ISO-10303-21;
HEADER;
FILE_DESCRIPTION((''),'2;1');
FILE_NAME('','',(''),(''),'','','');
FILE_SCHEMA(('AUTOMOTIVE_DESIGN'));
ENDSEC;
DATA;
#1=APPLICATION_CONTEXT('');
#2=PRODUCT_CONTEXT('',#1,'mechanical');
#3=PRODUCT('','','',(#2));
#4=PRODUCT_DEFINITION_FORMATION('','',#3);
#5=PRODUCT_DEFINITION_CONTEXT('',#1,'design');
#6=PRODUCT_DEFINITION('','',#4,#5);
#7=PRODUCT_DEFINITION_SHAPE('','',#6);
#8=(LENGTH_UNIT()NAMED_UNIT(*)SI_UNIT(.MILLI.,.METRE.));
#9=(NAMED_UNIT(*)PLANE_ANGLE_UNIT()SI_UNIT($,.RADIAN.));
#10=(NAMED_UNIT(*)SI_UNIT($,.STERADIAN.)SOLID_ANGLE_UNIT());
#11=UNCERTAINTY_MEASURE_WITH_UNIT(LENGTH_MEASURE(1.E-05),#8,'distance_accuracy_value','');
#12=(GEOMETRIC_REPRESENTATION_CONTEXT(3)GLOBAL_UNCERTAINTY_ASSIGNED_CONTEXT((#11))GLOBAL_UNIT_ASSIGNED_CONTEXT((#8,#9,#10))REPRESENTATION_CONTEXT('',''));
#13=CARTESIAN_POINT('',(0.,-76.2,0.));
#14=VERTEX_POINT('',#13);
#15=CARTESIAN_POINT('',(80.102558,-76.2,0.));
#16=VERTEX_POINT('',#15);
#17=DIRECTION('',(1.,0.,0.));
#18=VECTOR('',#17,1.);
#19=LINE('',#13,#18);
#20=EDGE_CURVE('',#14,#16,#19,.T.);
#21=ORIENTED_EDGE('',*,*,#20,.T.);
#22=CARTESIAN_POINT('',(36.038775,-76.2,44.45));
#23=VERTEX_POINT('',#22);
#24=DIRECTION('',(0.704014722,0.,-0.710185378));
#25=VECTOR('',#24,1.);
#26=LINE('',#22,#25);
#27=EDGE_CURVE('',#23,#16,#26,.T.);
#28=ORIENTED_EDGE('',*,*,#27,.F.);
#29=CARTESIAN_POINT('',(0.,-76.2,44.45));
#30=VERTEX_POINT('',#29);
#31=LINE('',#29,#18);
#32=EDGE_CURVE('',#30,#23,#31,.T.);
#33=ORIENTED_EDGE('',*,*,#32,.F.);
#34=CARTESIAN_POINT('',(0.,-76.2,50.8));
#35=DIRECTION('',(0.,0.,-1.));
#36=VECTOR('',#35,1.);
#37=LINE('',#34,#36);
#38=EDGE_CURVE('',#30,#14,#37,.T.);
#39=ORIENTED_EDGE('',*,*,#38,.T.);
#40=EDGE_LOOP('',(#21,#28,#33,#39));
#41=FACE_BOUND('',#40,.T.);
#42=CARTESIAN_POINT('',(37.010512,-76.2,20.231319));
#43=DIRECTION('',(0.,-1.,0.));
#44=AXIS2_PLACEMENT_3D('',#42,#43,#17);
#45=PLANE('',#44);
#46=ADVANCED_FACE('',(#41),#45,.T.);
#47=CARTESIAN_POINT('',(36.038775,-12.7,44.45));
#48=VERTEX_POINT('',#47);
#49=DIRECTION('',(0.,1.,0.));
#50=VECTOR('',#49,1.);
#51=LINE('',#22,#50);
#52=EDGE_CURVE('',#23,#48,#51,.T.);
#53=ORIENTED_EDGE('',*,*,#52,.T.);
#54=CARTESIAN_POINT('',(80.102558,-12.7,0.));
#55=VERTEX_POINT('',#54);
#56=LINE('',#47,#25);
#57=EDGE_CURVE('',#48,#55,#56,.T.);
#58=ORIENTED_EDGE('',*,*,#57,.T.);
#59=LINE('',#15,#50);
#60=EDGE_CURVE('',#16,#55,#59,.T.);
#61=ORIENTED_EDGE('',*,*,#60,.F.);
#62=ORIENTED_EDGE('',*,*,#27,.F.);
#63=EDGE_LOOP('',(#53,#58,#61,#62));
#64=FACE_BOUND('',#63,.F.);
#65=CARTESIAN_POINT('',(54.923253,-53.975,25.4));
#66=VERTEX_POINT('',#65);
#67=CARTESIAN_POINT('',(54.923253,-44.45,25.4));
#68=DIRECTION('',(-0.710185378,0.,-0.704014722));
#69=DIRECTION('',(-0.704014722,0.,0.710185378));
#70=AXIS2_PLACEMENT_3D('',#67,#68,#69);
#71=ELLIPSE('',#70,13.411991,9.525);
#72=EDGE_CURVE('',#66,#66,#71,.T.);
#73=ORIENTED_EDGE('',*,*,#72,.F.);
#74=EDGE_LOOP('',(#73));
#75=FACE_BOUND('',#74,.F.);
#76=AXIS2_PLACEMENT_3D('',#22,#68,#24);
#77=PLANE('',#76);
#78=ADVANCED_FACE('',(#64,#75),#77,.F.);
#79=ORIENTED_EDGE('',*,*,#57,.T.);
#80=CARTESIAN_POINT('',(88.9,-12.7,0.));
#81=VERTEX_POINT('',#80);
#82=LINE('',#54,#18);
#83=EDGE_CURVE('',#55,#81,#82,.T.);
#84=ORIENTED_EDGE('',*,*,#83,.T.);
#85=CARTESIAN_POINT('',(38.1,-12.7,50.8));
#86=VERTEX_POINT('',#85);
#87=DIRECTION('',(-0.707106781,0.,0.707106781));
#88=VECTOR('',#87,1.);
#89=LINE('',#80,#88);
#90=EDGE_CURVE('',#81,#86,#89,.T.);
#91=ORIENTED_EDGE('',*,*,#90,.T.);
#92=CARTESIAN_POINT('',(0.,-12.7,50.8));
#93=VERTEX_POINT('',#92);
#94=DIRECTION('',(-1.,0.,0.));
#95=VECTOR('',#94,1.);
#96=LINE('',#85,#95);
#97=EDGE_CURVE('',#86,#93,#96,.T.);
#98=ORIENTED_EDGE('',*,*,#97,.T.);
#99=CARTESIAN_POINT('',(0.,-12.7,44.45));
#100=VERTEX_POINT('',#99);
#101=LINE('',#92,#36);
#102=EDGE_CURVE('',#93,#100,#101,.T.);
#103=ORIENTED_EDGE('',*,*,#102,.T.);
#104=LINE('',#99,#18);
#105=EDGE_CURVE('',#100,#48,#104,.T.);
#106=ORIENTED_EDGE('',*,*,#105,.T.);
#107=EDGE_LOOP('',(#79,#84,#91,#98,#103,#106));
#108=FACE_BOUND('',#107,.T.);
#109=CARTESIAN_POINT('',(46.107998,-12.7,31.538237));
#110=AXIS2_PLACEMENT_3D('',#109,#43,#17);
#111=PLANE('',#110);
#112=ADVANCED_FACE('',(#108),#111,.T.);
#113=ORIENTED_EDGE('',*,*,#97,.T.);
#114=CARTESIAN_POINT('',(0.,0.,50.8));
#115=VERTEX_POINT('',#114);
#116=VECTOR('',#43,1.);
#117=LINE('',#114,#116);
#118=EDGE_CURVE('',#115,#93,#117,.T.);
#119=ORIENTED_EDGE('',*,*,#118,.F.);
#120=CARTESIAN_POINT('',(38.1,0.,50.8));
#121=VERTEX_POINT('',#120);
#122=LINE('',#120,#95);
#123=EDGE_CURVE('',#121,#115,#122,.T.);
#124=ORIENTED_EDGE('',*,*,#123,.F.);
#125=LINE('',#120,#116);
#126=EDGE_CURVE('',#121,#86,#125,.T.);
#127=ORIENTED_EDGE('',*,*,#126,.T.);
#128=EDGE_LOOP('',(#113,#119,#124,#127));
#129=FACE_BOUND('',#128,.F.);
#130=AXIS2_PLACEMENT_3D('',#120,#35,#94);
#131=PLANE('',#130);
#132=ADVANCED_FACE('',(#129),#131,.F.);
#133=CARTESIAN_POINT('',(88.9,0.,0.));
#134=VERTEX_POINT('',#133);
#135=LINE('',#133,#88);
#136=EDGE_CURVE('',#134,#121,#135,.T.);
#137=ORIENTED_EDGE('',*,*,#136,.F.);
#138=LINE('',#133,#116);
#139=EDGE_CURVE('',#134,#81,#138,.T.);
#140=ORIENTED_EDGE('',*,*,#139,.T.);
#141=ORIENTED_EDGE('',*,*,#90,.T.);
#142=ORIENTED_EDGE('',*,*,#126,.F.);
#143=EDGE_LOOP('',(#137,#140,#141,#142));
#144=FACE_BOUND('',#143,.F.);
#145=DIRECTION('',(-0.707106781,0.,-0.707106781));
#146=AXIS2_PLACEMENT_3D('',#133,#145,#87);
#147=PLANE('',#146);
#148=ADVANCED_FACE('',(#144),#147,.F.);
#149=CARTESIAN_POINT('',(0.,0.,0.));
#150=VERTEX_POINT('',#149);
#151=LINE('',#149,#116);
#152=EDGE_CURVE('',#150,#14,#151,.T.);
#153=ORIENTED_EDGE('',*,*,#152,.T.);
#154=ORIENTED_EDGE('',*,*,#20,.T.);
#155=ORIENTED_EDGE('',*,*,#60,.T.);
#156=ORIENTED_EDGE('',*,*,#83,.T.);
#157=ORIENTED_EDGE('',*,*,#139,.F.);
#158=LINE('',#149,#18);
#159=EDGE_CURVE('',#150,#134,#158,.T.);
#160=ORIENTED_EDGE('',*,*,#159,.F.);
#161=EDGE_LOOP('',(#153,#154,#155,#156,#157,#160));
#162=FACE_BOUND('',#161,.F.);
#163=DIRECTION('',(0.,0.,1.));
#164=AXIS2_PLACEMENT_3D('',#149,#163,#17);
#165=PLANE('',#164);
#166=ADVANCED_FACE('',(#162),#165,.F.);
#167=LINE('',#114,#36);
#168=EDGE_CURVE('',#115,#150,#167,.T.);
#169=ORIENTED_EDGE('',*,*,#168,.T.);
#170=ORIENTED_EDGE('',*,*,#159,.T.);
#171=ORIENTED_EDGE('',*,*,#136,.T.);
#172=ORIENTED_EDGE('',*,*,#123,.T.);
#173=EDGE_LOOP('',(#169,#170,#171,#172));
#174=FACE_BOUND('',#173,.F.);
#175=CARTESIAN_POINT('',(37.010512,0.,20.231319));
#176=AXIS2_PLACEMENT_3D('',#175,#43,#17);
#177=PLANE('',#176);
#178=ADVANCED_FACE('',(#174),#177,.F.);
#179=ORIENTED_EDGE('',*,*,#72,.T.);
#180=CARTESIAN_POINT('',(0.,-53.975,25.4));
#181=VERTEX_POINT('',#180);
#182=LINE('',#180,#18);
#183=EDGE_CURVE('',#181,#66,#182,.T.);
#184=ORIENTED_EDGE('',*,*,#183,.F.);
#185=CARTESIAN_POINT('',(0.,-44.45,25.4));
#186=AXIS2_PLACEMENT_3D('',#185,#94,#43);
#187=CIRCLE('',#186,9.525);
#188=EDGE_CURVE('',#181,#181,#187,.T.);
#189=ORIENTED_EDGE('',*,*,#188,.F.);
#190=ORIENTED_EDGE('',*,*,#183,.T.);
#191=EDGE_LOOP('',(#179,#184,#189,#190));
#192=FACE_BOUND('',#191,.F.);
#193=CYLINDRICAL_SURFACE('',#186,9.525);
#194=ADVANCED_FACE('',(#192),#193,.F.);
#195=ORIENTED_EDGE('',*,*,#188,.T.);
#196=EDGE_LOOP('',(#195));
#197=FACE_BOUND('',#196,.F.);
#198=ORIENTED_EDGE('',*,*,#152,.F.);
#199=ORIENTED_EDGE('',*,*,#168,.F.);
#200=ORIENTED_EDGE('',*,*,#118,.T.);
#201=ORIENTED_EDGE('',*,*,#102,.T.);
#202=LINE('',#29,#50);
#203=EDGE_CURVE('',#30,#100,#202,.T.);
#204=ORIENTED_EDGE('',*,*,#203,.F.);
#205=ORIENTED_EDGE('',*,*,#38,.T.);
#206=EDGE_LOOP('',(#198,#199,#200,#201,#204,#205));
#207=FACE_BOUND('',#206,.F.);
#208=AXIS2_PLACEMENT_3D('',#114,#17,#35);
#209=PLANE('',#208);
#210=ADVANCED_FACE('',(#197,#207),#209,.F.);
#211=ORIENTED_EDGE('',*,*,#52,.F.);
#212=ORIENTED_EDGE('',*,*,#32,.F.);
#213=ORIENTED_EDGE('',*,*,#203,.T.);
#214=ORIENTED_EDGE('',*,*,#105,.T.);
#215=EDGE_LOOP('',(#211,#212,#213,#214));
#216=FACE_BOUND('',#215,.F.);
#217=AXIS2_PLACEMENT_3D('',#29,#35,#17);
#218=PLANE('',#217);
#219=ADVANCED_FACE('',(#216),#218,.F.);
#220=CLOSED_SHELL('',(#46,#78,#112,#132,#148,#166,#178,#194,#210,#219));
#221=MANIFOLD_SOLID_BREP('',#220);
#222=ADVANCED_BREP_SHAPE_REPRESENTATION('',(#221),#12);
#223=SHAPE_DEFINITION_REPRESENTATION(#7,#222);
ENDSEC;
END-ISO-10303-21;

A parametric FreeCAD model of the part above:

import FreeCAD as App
import Part
import Sketcher
Q = App.Units.Quantity

doc = App.newDocument("Part")
body = doc.addObject("PartDesign::Body", "Body")

# Sketch on XZ plane
sketch1 = doc.addObject("Sketcher::SketchObject", "Sketch")
body.addObject(sketch1)
sketch1.AttachmentSupport = (doc.XZ_Plane, [""])
sketch1.MapMode = "FlatFace"
sketch1.addGeometry(Part.LineSegment(App.Vector(0, 51, 0), App.Vector(0, 0, 0)), False)
sketch1.addGeometry(Part.LineSegment(App.Vector(0, 0, 0), App.Vector(89, 0, 0)), False)
sketch1.addGeometry(Part.LineSegment(App.Vector(89, 0, 0), App.Vector(38, 51, 0)), False)
sketch1.addGeometry(Part.LineSegment(App.Vector(38, 51, 0), App.Vector(0, 51, 0)), False)
sketch1.addConstraint(Sketcher.Constraint("Coincident", 0, 2, 1, 1))
sketch1.addConstraint(Sketcher.Constraint("Coincident", 1, 2, 2, 1))
sketch1.addConstraint(Sketcher.Constraint("Coincident", 2, 2, 3, 1))
sketch1.addConstraint(Sketcher.Constraint("Coincident", 3, 2, 0, 1))
sketch1.addConstraint(Sketcher.Constraint("Vertical", 0))
sketch1.addConstraint(Sketcher.Constraint("Horizontal", 1))
sketch1.addConstraint(Sketcher.Constraint("Horizontal", 3))
sketch1.addConstraint(Sketcher.Constraint("Coincident", 0, 2, -1, 1))
sketch1.addConstraint(Sketcher.Constraint("DistanceY", 0, 2, 0, 1, Q("2 in")))
sketch1.addConstraint(Sketcher.Constraint("DistanceX", 1, 1, 1, 2, Q("3.5 in")))
sketch1.addConstraint(Sketcher.Constraint("DistanceX", 3, 2, 3, 1, Q("1.5 in")))
pad1 = doc.addObject("PartDesign::Pad", "Pad")
body.addObject(pad1)
pad1.Profile = sketch1
pad1.Length = Q("3 in")

# Sketch on XZ plane
sketch2 = doc.addObject("Sketcher::SketchObject", "Sketch001")
body.addObject(sketch2)
sketch2.AttachmentSupport = (doc.XZ_Plane, [""])
sketch2.MapMode = "FlatFace"
sketch2.AttachmentOffset = App.Placement(App.Vector(0, 0, 3 * 25.4), App.Rotation())
sketch2.addGeometry(Part.LineSegment(App.Vector(0, 51, 0), App.Vector(0, 44, 0)), False)
sketch2.addGeometry(Part.LineSegment(App.Vector(0, 44, 0), App.Vector(36, 44, 0)), False)
sketch2.addGeometry(Part.LineSegment(App.Vector(36, 44, 0), App.Vector(80, 0, 0)), False)
sketch2.addGeometry(Part.LineSegment(App.Vector(80, 0, 0), App.Vector(89, 0, 0)), False)
sketch2.addGeometry(Part.LineSegment(App.Vector(89, 0, 0), App.Vector(38, 51, 0)), False)
sketch2.addGeometry(Part.LineSegment(App.Vector(38, 51, 0), App.Vector(0, 51, 0)), False)
sketch2.addConstraint(Sketcher.Constraint("Coincident", 0, 2, 1, 1))
sketch2.addConstraint(Sketcher.Constraint("Coincident", 1, 2, 2, 1))
sketch2.addConstraint(Sketcher.Constraint("Coincident", 2, 2, 3, 1))
sketch2.addConstraint(Sketcher.Constraint("Coincident", 3, 2, 4, 1))
sketch2.addConstraint(Sketcher.Constraint("Coincident", 4, 2, 5, 1))
sketch2.addConstraint(Sketcher.Constraint("Coincident", 5, 2, 0, 1))
sketch2.addConstraint(Sketcher.Constraint("Vertical", 0))
sketch2.addConstraint(Sketcher.Constraint("Horizontal", 1))
sketch2.addConstraint(Sketcher.Constraint("Horizontal", 3))
sketch2.addConstraint(Sketcher.Constraint("Horizontal", 5))
sketch2.addConstraint(Sketcher.Constraint("PointOnObject", 0, 2, -2))
sketch2.addConstraint(Sketcher.Constraint("PointOnObject", 2, 2, -1))
sketch2.addConstraint(Sketcher.Constraint("DistanceX", 5, 2, 5, 1, Q("1.5 in")))
sketch2.addConstraint(Sketcher.Constraint("DistanceY", -1, 1, 4, 2, Q("2 in")))
sketch2.addConstraint(Sketcher.Constraint("Angle", 4, Q("135 deg")))
sketch2.addConstraint(Sketcher.Constraint("DistanceY", 0, 2, 0, 1, Q("0.25 in")))
sketch2.addConstraint(Sketcher.Constraint("Angle", 2, Q("-45.25 deg")))
sketch2.addConstraint(Sketcher.Constraint("DistanceX", 1, 1, 1, 2, Q("36.038775 mm")))
pocket1 = doc.addObject("PartDesign::Pocket", "Pocket")
body.addObject(pocket1)
pocket1.Profile = sketch2
pocket1.Length = Q("2.5 in")

# Sketch on YZ plane
sketch3 = doc.addObject("Sketcher::SketchObject", "Sketch002")
body.addObject(sketch3)
sketch3.AttachmentSupport = (doc.YZ_Plane, [""])
sketch3.MapMode = "FlatFace"
sketch3.addGeometry(Part.Circle(App.Vector(-44, 25, 0), App.Vector(0, 0, 1), 10), False)
sketch3.addConstraint(Sketcher.Constraint("Diameter", 0, Q("0.75 in")))
sketch3.addConstraint(Sketcher.Constraint("DistanceY", -1, 1, 0, 3, Q("1 in")))
sketch3.addConstraint(Sketcher.Constraint("DistanceX", 0, 3, -1, 1, Q("1.75 in")))
pocket2 = doc.addObject("PartDesign::Pocket", "Pocket001")
body.addObject(pocket2)
pocket2.Profile = sketch3
pocket2.Length = Q("4 in")
pocket2.Reversed = True

doc.recompute()
